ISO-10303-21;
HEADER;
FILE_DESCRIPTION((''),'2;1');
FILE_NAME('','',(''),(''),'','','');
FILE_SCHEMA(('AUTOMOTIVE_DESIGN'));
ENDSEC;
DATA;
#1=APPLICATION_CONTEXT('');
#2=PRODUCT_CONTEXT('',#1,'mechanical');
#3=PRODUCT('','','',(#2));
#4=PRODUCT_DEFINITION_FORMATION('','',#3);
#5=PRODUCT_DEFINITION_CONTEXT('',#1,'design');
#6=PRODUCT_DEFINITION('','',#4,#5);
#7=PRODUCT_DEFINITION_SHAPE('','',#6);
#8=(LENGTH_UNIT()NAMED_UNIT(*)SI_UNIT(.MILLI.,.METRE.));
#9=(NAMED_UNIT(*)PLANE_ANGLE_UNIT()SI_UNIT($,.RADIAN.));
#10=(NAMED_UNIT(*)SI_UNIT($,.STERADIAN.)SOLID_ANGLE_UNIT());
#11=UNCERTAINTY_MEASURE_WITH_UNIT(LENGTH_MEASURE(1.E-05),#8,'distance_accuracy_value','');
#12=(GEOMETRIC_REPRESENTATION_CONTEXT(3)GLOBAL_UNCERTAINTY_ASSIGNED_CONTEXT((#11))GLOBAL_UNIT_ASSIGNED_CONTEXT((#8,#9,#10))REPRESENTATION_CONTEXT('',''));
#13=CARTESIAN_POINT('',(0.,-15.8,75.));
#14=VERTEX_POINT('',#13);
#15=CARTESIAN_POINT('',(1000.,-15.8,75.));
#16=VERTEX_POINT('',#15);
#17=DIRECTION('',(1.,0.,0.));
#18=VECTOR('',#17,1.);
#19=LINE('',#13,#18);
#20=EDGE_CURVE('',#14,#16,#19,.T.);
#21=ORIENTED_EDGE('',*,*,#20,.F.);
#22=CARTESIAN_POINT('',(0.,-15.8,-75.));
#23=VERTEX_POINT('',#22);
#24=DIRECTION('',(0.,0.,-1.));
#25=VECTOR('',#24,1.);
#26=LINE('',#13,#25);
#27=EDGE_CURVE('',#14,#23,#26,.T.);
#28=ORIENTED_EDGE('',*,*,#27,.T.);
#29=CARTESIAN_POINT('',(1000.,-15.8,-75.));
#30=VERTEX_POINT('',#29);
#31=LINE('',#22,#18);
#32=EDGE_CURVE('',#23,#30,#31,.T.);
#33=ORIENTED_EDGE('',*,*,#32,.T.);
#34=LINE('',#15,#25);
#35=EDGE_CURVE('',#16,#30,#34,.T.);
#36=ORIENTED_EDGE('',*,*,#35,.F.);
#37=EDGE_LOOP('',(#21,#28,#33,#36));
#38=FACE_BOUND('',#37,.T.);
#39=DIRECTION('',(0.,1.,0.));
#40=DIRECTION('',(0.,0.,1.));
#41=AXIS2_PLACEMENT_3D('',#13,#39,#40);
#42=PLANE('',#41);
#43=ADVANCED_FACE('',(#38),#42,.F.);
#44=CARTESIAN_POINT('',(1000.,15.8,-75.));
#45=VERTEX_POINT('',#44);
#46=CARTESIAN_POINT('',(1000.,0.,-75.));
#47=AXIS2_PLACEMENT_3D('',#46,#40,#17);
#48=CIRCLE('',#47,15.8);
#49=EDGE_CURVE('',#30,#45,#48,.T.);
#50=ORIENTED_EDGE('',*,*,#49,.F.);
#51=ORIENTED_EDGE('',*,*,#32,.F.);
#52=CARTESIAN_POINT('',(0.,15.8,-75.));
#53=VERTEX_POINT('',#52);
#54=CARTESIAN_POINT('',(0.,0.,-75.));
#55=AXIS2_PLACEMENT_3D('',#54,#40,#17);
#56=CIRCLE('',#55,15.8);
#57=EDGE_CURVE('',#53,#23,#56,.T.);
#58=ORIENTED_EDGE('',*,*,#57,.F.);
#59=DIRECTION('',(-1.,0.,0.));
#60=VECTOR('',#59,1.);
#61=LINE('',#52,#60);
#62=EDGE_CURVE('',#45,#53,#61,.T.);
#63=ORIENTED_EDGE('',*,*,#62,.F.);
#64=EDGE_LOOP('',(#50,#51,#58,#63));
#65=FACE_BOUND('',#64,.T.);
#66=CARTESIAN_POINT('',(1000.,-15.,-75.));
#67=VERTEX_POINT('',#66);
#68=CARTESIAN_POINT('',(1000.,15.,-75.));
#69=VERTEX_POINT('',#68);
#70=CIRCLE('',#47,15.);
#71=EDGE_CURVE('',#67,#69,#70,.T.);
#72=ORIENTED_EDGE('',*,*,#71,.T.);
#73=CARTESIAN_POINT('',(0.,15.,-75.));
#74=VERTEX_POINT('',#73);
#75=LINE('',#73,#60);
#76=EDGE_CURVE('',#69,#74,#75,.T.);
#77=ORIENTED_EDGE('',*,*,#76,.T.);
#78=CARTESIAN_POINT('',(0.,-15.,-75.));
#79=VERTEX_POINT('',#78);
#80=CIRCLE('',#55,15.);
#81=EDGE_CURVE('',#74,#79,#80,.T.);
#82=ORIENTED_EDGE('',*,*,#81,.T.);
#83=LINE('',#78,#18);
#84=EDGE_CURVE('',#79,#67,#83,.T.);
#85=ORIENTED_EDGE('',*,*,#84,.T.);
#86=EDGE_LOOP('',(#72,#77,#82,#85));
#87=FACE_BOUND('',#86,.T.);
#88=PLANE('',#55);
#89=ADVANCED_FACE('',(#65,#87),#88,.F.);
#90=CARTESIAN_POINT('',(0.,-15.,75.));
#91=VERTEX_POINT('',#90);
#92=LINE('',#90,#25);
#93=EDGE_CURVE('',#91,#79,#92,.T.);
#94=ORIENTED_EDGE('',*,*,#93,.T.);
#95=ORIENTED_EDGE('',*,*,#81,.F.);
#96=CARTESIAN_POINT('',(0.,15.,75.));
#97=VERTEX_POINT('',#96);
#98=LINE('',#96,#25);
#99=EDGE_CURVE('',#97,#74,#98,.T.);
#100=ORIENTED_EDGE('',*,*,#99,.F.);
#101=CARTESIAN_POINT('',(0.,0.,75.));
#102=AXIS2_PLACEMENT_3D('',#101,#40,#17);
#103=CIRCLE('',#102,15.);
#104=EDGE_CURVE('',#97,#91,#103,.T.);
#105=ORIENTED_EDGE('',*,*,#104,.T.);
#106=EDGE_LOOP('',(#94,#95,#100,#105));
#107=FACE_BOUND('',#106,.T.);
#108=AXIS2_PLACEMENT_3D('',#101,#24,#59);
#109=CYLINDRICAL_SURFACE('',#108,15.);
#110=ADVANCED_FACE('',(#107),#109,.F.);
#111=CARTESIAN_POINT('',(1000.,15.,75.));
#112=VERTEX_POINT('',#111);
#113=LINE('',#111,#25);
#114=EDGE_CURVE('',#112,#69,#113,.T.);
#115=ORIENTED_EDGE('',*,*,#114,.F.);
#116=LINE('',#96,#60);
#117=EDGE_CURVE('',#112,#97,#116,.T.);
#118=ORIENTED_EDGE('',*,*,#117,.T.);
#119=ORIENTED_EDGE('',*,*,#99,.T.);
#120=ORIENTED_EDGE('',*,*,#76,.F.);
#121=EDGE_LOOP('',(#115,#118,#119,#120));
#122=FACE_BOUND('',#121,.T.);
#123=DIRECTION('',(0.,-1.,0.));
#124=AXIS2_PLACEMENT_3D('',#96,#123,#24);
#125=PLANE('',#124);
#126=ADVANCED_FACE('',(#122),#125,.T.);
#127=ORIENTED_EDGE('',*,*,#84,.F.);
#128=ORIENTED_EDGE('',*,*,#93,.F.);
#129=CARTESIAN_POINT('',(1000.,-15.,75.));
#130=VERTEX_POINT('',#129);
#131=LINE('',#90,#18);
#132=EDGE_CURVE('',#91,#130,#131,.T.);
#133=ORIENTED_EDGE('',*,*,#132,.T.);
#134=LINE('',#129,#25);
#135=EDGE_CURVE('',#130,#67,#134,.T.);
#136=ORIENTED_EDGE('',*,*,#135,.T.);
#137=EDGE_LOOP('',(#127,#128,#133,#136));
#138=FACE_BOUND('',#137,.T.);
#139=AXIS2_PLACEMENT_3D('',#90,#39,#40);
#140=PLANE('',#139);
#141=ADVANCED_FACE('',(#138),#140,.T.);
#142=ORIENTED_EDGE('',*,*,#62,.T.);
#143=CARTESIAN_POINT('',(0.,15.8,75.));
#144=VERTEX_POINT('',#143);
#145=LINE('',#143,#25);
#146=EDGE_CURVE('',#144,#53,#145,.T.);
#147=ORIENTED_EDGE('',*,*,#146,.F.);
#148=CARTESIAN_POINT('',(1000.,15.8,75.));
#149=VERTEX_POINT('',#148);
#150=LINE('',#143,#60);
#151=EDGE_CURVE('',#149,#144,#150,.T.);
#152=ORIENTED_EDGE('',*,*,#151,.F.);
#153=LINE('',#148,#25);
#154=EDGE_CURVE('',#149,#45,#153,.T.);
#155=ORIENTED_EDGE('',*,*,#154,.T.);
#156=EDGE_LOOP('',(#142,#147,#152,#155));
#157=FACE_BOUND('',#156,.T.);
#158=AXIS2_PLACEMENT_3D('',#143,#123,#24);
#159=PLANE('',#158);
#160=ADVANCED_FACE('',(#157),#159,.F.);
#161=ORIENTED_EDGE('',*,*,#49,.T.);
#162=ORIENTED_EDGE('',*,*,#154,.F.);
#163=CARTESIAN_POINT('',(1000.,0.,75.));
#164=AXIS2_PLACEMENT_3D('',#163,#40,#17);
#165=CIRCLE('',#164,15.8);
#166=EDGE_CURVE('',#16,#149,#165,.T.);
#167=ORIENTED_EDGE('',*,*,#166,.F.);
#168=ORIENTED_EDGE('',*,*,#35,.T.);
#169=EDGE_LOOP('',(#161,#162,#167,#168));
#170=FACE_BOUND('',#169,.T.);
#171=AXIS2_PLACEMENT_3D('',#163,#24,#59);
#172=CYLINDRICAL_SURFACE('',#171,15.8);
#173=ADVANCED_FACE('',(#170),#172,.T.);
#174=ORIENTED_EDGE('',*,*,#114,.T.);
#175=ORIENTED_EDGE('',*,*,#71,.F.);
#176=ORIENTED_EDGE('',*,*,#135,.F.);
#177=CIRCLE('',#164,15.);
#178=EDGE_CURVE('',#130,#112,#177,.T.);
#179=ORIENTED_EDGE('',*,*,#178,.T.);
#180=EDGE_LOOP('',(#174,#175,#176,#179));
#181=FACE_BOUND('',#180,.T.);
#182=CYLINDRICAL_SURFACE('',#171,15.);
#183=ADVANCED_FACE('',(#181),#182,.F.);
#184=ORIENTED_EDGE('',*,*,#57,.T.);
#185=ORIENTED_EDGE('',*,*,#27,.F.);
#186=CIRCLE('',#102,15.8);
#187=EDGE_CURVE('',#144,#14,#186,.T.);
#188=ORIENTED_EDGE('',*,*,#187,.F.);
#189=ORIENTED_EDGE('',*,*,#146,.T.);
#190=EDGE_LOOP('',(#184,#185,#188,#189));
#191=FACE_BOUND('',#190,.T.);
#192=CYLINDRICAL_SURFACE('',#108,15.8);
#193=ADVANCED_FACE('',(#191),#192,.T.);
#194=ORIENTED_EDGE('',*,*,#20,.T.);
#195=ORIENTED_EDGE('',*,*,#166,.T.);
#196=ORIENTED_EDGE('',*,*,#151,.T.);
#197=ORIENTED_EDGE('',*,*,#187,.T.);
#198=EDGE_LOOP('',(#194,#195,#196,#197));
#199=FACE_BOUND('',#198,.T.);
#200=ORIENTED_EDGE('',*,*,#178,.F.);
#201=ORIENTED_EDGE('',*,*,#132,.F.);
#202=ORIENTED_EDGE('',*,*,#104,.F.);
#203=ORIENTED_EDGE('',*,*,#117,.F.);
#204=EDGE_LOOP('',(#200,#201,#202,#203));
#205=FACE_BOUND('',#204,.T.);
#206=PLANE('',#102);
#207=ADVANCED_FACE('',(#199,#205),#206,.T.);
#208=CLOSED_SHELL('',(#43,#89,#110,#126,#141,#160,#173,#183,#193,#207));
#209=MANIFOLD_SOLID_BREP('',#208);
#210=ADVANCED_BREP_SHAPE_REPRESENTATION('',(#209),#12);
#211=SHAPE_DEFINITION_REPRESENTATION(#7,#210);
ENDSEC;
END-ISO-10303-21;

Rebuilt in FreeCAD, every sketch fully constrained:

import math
import FreeCAD as App
import Part
import Sketcher

V = App.Vector

doc = App.newDocument("Part")
body = doc.addObject("PartDesign::Body", "Body")

sketch1 = body.newObject("Sketcher::SketchObject", "Sketch")
sketch1.AttachmentSupport = (doc.getObject("XY_Plane"), [""])
sketch1.MapMode = "FlatFace"
sketch1.addGeometry([
    Part.LineSegment(V(1000, 15.8, 0), V(0, 15.8, 0)),
    Part.ArcOfCircle(Part.Circle(V(0, 0, 0), V(0, 0, 1), 15.8), math.radians(90), math.radians(270)),
    Part.LineSegment(V(0, -15.8, 0), V(1000, -15.8, 0)),
    Part.ArcOfCircle(Part.Circle(V(1000, 0, 0), V(0, 0, 1), 15.8), math.radians(-90), math.radians(90)),
    Part.LineSegment(V(0, 15, 0), V(1000, 15, 0)),
    Part.ArcOfCircle(Part.Circle(V(1000, 0, 0), V(0, 0, 1), 15), math.radians(-90), math.radians(90)),
    Part.LineSegment(V(1000, -15, 0), V(0, -15, 0)),
    Part.ArcOfCircle(Part.Circle(V(0, 0, 0), V(0, 0, 1), 15), math.radians(90), math.radians(270)),
], False)
sketch1.addConstraint([
    Sketcher.Constraint("Tangent", 0, 2, 1, 1),
    Sketcher.Constraint("Tangent", 1, 2, 2, 1),
    Sketcher.Constraint("Tangent", 2, 2, 3, 1),
    Sketcher.Constraint("Tangent", 3, 2, 0, 1),
    Sketcher.Constraint("Tangent", 4, 2, 5, 2),
    Sketcher.Constraint("Tangent", 5, 1, 6, 1),
    Sketcher.Constraint("Tangent", 6, 2, 7, 2),
    Sketcher.Constraint("Tangent", 7, 1, 4, 1),
    Sketcher.Constraint("Horizontal", 0),
    Sketcher.Constraint("Horizontal", 2),
    Sketcher.Constraint("Horizontal", 4),
    Sketcher.Constraint("Horizontal", 6),
    Sketcher.Constraint("Coincident", 1, 3, -1, 1),
    Sketcher.Constraint("Coincident", 7, 3, -1, 1),
    Sketcher.Constraint("Vertical", 5, 3, 2, 2),
    Sketcher.Constraint("Radius", 5, 15.0),
    Sketcher.Constraint("Radius", 1, 15.8),
    Sketcher.Constraint("DistanceX", 0, 2, 0, 1, 1000.0),
])
pad1 = body.newObject("PartDesign::Pad", "Pad")
pad1.Profile = sketch1
pad1.Length = 150
pad1.Midplane = True

doc.recompute()
